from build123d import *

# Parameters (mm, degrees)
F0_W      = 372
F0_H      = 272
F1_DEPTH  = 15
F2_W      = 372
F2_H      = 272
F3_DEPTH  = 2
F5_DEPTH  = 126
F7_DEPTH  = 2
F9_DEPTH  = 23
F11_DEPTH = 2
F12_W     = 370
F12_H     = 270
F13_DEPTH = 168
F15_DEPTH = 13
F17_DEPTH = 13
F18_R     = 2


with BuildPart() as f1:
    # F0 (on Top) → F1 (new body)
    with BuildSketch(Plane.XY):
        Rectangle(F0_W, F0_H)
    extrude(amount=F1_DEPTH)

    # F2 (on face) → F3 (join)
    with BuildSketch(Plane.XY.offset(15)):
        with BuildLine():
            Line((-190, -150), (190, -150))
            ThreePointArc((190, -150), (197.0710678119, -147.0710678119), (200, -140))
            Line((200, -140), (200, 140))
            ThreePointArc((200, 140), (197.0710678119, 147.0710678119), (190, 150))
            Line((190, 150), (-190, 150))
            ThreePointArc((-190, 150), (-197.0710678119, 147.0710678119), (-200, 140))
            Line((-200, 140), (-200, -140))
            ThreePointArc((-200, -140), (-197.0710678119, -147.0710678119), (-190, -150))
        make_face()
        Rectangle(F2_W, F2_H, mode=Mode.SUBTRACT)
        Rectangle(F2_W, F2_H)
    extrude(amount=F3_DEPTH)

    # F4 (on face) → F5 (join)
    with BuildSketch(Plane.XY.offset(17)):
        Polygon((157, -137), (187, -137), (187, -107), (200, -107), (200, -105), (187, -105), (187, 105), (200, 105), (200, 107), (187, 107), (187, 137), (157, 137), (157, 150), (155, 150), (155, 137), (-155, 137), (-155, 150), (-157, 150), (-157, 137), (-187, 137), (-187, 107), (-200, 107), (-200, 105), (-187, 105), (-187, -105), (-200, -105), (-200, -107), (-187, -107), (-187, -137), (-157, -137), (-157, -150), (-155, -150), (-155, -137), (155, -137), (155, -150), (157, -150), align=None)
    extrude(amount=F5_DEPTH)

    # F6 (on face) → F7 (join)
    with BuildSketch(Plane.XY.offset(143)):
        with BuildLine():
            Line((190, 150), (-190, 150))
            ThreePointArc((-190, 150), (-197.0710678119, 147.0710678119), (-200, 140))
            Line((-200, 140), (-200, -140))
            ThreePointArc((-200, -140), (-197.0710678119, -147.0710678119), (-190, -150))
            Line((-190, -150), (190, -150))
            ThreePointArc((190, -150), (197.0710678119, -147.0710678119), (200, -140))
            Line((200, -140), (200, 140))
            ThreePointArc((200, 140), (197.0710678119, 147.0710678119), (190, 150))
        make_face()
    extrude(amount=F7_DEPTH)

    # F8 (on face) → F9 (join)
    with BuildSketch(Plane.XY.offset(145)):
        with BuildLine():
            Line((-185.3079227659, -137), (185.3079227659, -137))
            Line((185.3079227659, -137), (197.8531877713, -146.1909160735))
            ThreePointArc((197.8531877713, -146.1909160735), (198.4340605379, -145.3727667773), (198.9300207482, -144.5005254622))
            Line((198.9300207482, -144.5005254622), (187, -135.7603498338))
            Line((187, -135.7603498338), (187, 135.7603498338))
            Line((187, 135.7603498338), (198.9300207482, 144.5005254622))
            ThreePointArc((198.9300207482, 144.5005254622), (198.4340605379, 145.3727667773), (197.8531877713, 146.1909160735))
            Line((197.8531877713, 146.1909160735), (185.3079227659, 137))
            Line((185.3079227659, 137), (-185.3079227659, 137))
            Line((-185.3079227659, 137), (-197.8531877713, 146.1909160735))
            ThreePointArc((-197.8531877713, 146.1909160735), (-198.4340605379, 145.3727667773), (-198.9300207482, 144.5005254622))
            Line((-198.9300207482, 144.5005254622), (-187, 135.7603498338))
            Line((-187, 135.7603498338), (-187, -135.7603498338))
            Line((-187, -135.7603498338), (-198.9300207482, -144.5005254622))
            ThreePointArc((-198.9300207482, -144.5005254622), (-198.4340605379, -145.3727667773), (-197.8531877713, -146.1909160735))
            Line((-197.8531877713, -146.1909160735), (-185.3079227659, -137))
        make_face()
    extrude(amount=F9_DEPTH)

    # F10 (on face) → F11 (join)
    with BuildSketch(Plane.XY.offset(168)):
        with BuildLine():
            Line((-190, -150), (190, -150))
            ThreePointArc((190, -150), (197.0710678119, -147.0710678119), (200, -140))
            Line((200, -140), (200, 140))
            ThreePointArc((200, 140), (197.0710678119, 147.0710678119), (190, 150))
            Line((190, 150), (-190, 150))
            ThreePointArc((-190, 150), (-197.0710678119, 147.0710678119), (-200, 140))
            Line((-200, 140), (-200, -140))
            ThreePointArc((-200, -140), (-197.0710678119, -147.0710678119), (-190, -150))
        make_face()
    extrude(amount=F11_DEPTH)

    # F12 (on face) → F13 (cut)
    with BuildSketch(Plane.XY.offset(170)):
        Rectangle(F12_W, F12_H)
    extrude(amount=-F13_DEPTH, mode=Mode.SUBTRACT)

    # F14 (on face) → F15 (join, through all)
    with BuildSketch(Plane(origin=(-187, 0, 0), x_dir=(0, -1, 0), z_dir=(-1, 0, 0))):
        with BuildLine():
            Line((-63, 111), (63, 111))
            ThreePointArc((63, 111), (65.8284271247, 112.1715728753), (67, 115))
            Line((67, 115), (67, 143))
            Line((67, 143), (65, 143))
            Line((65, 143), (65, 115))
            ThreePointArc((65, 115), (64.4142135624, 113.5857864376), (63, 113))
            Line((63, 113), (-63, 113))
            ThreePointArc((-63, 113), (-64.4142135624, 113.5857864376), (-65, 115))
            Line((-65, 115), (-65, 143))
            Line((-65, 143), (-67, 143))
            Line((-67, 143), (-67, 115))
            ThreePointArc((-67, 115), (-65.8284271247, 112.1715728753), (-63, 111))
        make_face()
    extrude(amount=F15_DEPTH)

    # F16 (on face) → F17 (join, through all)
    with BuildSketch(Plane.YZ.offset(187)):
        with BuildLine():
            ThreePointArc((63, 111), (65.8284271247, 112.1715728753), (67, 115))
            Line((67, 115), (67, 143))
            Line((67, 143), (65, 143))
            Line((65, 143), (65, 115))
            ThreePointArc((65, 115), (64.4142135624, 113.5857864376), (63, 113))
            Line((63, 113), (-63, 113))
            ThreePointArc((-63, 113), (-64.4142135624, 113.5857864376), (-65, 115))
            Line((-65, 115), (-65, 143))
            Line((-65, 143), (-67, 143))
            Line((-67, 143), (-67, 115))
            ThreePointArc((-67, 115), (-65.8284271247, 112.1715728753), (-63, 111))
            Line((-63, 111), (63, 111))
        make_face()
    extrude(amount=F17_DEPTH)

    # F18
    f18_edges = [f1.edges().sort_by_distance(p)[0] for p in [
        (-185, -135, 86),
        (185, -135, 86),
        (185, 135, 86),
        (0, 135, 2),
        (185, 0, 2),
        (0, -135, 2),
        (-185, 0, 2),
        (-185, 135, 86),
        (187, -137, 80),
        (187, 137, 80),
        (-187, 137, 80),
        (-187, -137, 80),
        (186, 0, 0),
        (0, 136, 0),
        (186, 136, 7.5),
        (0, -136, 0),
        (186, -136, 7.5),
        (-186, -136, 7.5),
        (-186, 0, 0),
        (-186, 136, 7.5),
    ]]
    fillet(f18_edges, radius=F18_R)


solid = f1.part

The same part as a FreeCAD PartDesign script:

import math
import FreeCAD as App
import Part
import Sketcher

V = App.Vector


def edges_at(feature, points):
    """Names of the edges that pass closest to the given points."""
    edges = feature.Shape.Edges
    near = lambda p: min(range(len(edges)), key=lambda i: edges[i].distToShape(Part.Vertex(*p))[0])
    return sorted({f"Edge{near(p) + 1}" for p in points})

doc = App.newDocument("Part")
body = doc.addObject("PartDesign::Body", "Body")

# Sketch on XY plane
sketch1 = body.newObject("Sketcher::SketchObject", "Sketch")
sketch1.AttachmentSupport = (doc.getObject("XY_Plane"), [""])
sketch1.MapMode = "FlatFace"
sketch1.addGeometry([
    Part.LineSegment(V(-186, 136, 0), V(-186, -136, 0)),
    Part.LineSegment(V(-186, -136, 0), V(186, -136, 0)),
    Part.LineSegment(V(186, -136, 0), V(186, 136, 0)),
    Part.LineSegment(V(186, 136, 0), V(-186, 136, 0)),
], False)
sketch1.addConstraint([
    Sketcher.Constraint("Coincident", 0, 2, 1, 1),
    Sketcher.Constraint("Coincident", 1, 2, 2, 1),
    Sketcher.Constraint("Coincident", 2, 2, 3, 1),
    Sketcher.Constraint("Coincident", 3, 2, 0, 1),
    Sketcher.Constraint("Vertical", 0),
    Sketcher.Constraint("Horizontal", 1),
    Sketcher.Constraint("Vertical", 2),
    Sketcher.Constraint("Horizontal", 3),
    Sketcher.Constraint("Symmetric", 0, 2, 2, 2, -1, 1),
    Sketcher.Constraint("DistanceX", 1, 1, 1, 2, 372.0),
    Sketcher.Constraint("DistanceY", 0, 2, 0, 1, 272.0),
])
pad1 = body.newObject("PartDesign::Pad", "Pad")
pad1.Profile = sketch1
pad1.Length = 15

# Sketch on XY plane
sketch2 = body.newObject("Sketcher::SketchObject", "Sketch001")
sketch2.AttachmentSupport = (doc.getObject("XY_Plane"), [""])
sketch2.MapMode = "FlatFace"
sketch2.AttachmentOffset = App.Placement(V(0, 0, 15), App.Rotation())
sketch2.addGeometry([
    Part.LineSegment(V(-190, -150, 0), V(190, -150, 0)),  # 0
    Part.ArcOfCircle(Part.Circle(V(190, -140, 0), V(0, 0, 1), 10), math.radians(-90), math.radians(0)),  # 1
    Part.LineSegment(V(200, -140, 0), V(200, 140, 0)),  # 2
    Part.ArcOfCircle(Part.Circle(V(190, 140, 0), V(0, 0, 1), 10), math.radians(0), math.radians(90)),  # 3
    Part.LineSegment(V(190, 150, 0), V(-190, 150, 0)),  # 4
    Part.ArcOfCircle(Part.Circle(V(-190, 140, 0), V(0, 0, 1), 10), math.radians(90), math.radians(180)),  # 5
    Part.LineSegment(V(-200, 140, 0), V(-200, -140, 0)),  # 6
    Part.ArcOfCircle(Part.Circle(V(-190, -140, 0), V(0, 0, 1), 10), math.radians(180), math.radians(270)),  # 7
], False)
sketch2.addConstraint([
    Sketcher.Constraint("Tangent", 0, 2, 1, 1),
    Sketcher.Constraint("Tangent", 1, 2, 2, 1),
    Sketcher.Constraint("Tangent", 2, 2, 3, 1),
    Sketcher.Constraint("Tangent", 3, 2, 4, 1),
    Sketcher.Constraint("Tangent", 4, 2, 5, 1),
    Sketcher.Constraint("Tangent", 5, 2, 6, 1),
    Sketcher.Constraint("Tangent", 6, 2, 7, 1),
    Sketcher.Constraint("Tangent", 7, 2, 0, 1),
    Sketcher.Constraint("Horizontal", 0),
    Sketcher.Constraint("Vertical", 2),
    Sketcher.Constraint("Horizontal", 4),
    Sketcher.Constraint("Vertical", 6),
    Sketcher.Constraint("Equal", 1, 3),
    Sketcher.Constraint("Equal", 3, 5),
    Sketcher.Constraint("Equal", 5, 7),
    Sketcher.Constraint("Symmetric", 1, 3, 5, 3, -1, 1),
    Sketcher.Constraint("Radius", 1, 10.0),
    Sketcher.Constraint("DistanceX", 0, 1, 0, 2, 380.0),
    Sketcher.Constraint("DistanceY", 2, 1, 2, 2, 280.0),
])
pad2 = body.newObject("PartDesign::Pad", "Pad001")
pad2.Profile = sketch2
pad2.Length = 2

# Sketch on XY plane
sketch3 = body.newObject("Sketcher::SketchObject", "Sketch002")
sketch3.AttachmentSupport = (doc.getObject("XY_Plane"), [""])
sketch3.MapMode = "FlatFace"
sketch3.AttachmentOffset = App.Placement(V(0, 0, 17), App.Rotation())
sketch3.addGeometry([
    Part.LineSegment(V(157, -137, 0), V(187, -137, 0)),  # 0
    Part.LineSegment(V(187, -137, 0), V(187, -107, 0)),  # 1
    Part.LineSegment(V(187, -107, 0), V(200, -107, 0)),  # 2
    Part.LineSegment(V(200, -107, 0), V(200, -105, 0)),  # 3
    Part.LineSegment(V(200, -105, 0), V(187, -105, 0)),  # 4
    Part.LineSegment(V(187, -105, 0), V(187, 105, 0)),  # 5
    Part.LineSegment(V(187, 105, 0), V(200, 105, 0)),  # 6
    Part.LineSegment(V(200, 105, 0), V(200, 107, 0)),  # 7
    Part.LineSegment(V(200, 107, 0), V(187, 107, 0)),  # 8
    Part.LineSegment(V(187, 107, 0), V(187, 137, 0)),  # 9
    Part.LineSegment(V(187, 137, 0), V(157, 137, 0)),  # 10
    Part.LineSegment(V(157, 137, 0), V(157, 150, 0)),  # 11
    Part.LineSegment(V(157, 150, 0), V(155, 150, 0)),  # 12
    Part.LineSegment(V(155, 150, 0), V(155, 137, 0)),  # 13
    Part.LineSegment(V(155, 137, 0), V(-155, 137, 0)),  # 14
    Part.LineSegment(V(-155, 137, 0), V(-155, 150, 0)),  # 15
    Part.LineSegment(V(-155, 150, 0), V(-157, 150, 0)),  # 16
    Part.LineSegment(V(-157, 150, 0), V(-157, 137, 0)),  # 17
    Part.LineSegment(V(-157, 137, 0), V(-187, 137, 0)),  # 18
    Part.LineSegment(V(-187, 137, 0), V(-187, 107, 0)),  # 19
    Part.LineSegment(V(-187, 107, 0), V(-200, 107, 0)),  # 20
    Part.LineSegment(V(-200, 107, 0), V(-200, 105, 0)),  # 21
    Part.LineSegment(V(-200, 105, 0), V(-187, 105, 0)),  # 22
    Part.LineSegment(V(-187, 105, 0), V(-187, -105, 0)),  # 23
    Part.LineSegment(V(-187, -105, 0), V(-200, -105, 0)),  # 24
    Part.LineSegment(V(-200, -105, 0), V(-200, -107, 0)),  # 25
    Part.LineSegment(V(-200, -107, 0), V(-187, -107, 0)),  # 26
    Part.LineSegment(V(-187, -107, 0), V(-187, -137, 0)),  # 27
    Part.LineSegment(V(-187, -137, 0), V(-157, -137, 0)),  # 28
    Part.LineSegment(V(-157, -137, 0), V(-157, -150, 0)),  # 29
    Part.LineSegment(V(-157, -150, 0), V(-155, -150, 0)),  # 30
    Part.LineSegment(V(-155, -150, 0), V(-155, -137, 0)),  # 31
    Part.LineSegment(V(-155, -137, 0), V(155, -137, 0)),  # 32
    Part.LineSegment(V(155, -137, 0), V(155, -150, 0)),  # 33
    Part.LineSegment(V(155, -150, 0), V(157, -150, 0)),  # 34
    Part.LineSegment(V(157, -150, 0), V(157, -137, 0)),  # 35
], False)
sketch3.addConstraint([
    Sketcher.Constraint("Coincident", 0, 2, 1, 1),
    Sketcher.Constraint("Coincident", 1, 2, 2, 1),
    Sketcher.Constraint("Coincident", 2, 2, 3, 1),
    Sketcher.Constraint("Coincident", 3, 2, 4, 1),
    Sketcher.Constraint("Coincident", 4, 2, 5, 1),
    Sketcher.Constraint("Coincident", 5, 2, 6, 1),
    Sketcher.Constraint("Coincident", 6, 2, 7, 1),
    Sketcher.Constraint("Coincident", 7, 2, 8, 1),
    Sketcher.Constraint("Coincident", 8, 2, 9, 1),
    Sketcher.Constraint("Coincident", 9, 2, 10, 1),
    Sketcher.Constraint("Coincident", 10, 2, 11, 1),
    Sketcher.Constraint("Coincident", 11, 2, 12, 1),
    Sketcher.Constraint("Coincident", 12, 2, 13, 1),
    Sketcher.Constraint("Coincident", 13, 2, 14, 1),
    Sketcher.Constraint("Coincident", 14, 2, 15, 1),
    Sketcher.Constraint("Coincident", 15, 2, 16, 1),
    Sketcher.Constraint("Coincident", 16, 2, 17, 1),
    Sketcher.Constraint("Coincident", 17, 2, 18, 1),
    Sketcher.Constraint("Coincident", 18, 2, 19, 1),
    Sketcher.Constraint("Coincident", 19, 2, 20, 1),
    Sketcher.Constraint("Coincident", 20, 2, 21, 1),
    Sketcher.Constraint("Coincident", 21, 2, 22, 1),
    Sketcher.Constraint("Coincident", 22, 2, 23, 1),
    Sketcher.Constraint("Coincident", 23, 2, 24, 1),
    Sketcher.Constraint("Coincident", 24, 2, 25, 1),
    Sketcher.Constraint("Coincident", 25, 2, 26, 1),
    Sketcher.Constraint("Coincident", 26, 2, 27, 1),
    Sketcher.Constraint("Coincident", 27, 2, 28, 1),
    Sketcher.Constraint("Coincident", 28, 2, 29, 1),
    Sketcher.Constraint("Coincident", 29, 2, 30, 1),
    Sketcher.Constraint("Coincident", 30, 2, 31, 1),
    Sketcher.Constraint("Coincident", 31, 2, 32, 1),
    Sketcher.Constraint("Coincident", 32, 2, 33, 1),
    Sketcher.Constraint("Coincident", 33, 2, 34, 1),
    Sketcher.Constraint("Coincident", 34, 2, 35, 1),
    Sketcher.Constraint("Coincident", 35, 2, 0, 1),
    Sketcher.Constraint("Horizontal", 0),
    Sketcher.Constraint("Vertical", 1),
    Sketcher.Constraint("Horizontal", 2),
    Sketcher.Constraint("Vertical", 3),
    Sketcher.Constraint("Horizontal", 4),
    Sketcher.Constraint("Vertical", 5),
    Sketcher.Constraint("Horizontal", 6),
    Sketcher.Constraint("Vertical", 7),
    Sketcher.Constraint("Horizontal", 8),
    Sketcher.Constraint("Vertical", 9),
    Sketcher.Constraint("Horizontal", 10),
    Sketcher.Constraint("Vertical", 11),
    Sketcher.Constraint("Horizontal", 12),
    Sketcher.Constraint("Vertical", 13),
    Sketcher.Constraint("Horizontal", 14),
    Sketcher.Constraint("Vertical", 15),
    Sketcher.Constraint("Horizontal", 16),
    Sketcher.Constraint("Vertical", 17),
    Sketcher.Constraint("Horizontal", 18),
    Sketcher.Constraint("Vertical", 19),
    Sketcher.Constraint("Horizontal", 20),
    Sketcher.Constraint("Vertical", 21),
    Sketcher.Constraint("Horizontal", 22),
    Sketcher.Constraint("Vertical", 23),
    Sketcher.Constraint("Horizontal", 24),
    Sketcher.Constraint("Vertical", 25),
    Sketcher.Constraint("Horizontal", 26),
    Sketcher.Constraint("Vertical", 27),
    Sketcher.Constraint("Horizontal", 28),
    Sketcher.Constraint("Vertical", 29),
    Sketcher.Constraint("Horizontal", 30),
    Sketcher.Constraint("Vertical", 31),
    Sketcher.Constraint("Horizontal", 32),
    Sketcher.Constraint("Vertical", 33),
    Sketcher.Constraint("Horizontal", 34),
    Sketcher.Constraint("Vertical", 35),
    Sketcher.Constraint("Symmetric", 0, 2, 18, 2, -1, 1),
    Sketcher.Constraint("Symmetric", 2, 2, 20, 2, -1, 1),
    Sketcher.Constraint("Symmetric", 4, 2, 22, 2, -1, 1),
    Sketcher.Constraint("Symmetric", 6, 2, 24, 2, -1, 1),
    Sketcher.Constraint("Symmetric", 8, 2, 26, 2, -1, 1),
    Sketcher.Constraint("Symmetric", 10, 2, 28, 2, -1, 1),
    Sketcher.Constraint("Symmetric", 12, 2, 30, 2, -1, 1),
    Sketcher.Constraint("Symmetric", 14, 2, 32, 2, -1, 1),
    Sketcher.Constraint("Symmetric", 16, 2, 34, 2, -1, 1),
    Sketcher.Constraint("Symmetric", 12, 2, 15, 2, -2),
    Sketcher.Constraint("Symmetric", 10, 2, 17, 2, -2),
    Sketcher.Constraint("Symmetric", 8, 2, 19, 2, -2),
    Sketcher.Constraint("Symmetric", 6, 2, 21, 2, -2),
    Sketcher.Constraint("Horizontal", 10, 2, 13, 2),
    Sketcher.Constraint("Vertical", 1, 2, 4, 2),
    Sketcher.Constraint("Equal", 28, 1),
    Sketcher.Constraint("Equal", 34, 3),
    Sketcher.Constraint("Equal", 26, 11),
    Sketcher.Constraint("DistanceX", 0, 1, 0, 2, 30.0),
    Sketcher.Constraint("DistanceX", 2, 1, 2, 2, 13.0),
    Sketcher.Constraint("DistanceX", 12, 2, 12, 1, 2.0),
    Sketcher.Constraint("DistanceX", 14, 2, 14, 1, 310.0),
    Sketcher.Constraint("DistanceY", 5, 1, 5, 2, 210.0),
])
pad3 = body.newObject("PartDesign::Pad", "Pad002")
pad3.Profile = sketch3
pad3.Length = 126

# Sketch on XY plane
sketch4 = body.newObject("Sketcher::SketchObject", "Sketch003")
sketch4.AttachmentSupport = (doc.getObject("XY_Plane"), [""])
sketch4.MapMode = "FlatFace"
sketch4.AttachmentOffset = App.Placement(V(0, 0, 143), App.Rotation())
sketch4.addGeometry([
    Part.LineSegment(V(190, 150, 0), V(-190, 150, 0)),  # 0
    Part.ArcOfCircle(Part.Circle(V(-190, 140, 0), V(0, 0, 1), 10), math.radians(90), math.radians(180)),  # 1
    Part.LineSegment(V(-200, 140, 0), V(-200, -140, 0)),  # 2
    Part.ArcOfCircle(Part.Circle(V(-190, -140, 0), V(0, 0, 1), 10), math.radians(180), math.radians(270)),  # 3
    Part.LineSegment(V(-190, -150, 0), V(190, -150, 0)),  # 4
    Part.ArcOfCircle(Part.Circle(V(190, -140, 0), V(0, 0, 1), 10), math.radians(-90), math.radians(0)),  # 5
    Part.LineSegment(V(200, -140, 0), V(200, 140, 0)),  # 6
    Part.ArcOfCircle(Part.Circle(V(190, 140, 0), V(0, 0, 1), 10), math.radians(0), math.radians(90)),  # 7
], False)
sketch4.addConstraint([
    Sketcher.Constraint("Tangent", 0, 2, 1, 1),
    Sketcher.Constraint("Tangent", 1, 2, 2, 1),
    Sketcher.Constraint("Tangent", 2, 2, 3, 1),
    Sketcher.Constraint("Tangent", 3, 2, 4, 1),
    Sketcher.Constraint("Tangent", 4, 2, 5, 1),
    Sketcher.Constraint("Tangent", 5, 2, 6, 1),
    Sketcher.Constraint("Tangent", 6, 2, 7, 1),
    Sketcher.Constraint("Tangent", 7, 2, 0, 1),
    Sketcher.Constraint("Horizontal", 0),
    Sketcher.Constraint("Vertical", 2),
    Sketcher.Constraint("Horizontal", 4),
    Sketcher.Constraint("Vertical", 6),
    Sketcher.Constraint("Equal", 1, 3),
    Sketcher.Constraint("Equal", 3, 5),
    Sketcher.Constraint("Equal", 5, 7),
    Sketcher.Constraint("Symmetric", 1, 3, 5, 3, -1, 1),
    Sketcher.Constraint("Radius", 1, 10.0),
    Sketcher.Constraint("DistanceX", 0, 2, 0, 1, 380.0),
    Sketcher.Constraint("DistanceY", 2, 2, 2, 1, 280.0),
])
pad4 = body.newObject("PartDesign::Pad", "Pad003")
pad4.Profile = sketch4
pad4.Length = 2

# Sketch on XY plane
sketch5 = body.newObject("Sketcher::SketchObject", "Sketch004")
sketch5.AttachmentSupport = (doc.getObject("XY_Plane"), [""])
sketch5.MapMode = "FlatFace"
sketch5.AttachmentOffset = App.Placement(V(0, 0, 145), App.Rotation())
sketch5.addGeometry([
    Part.LineSegment(V(-185.3, -137, 0), V(185.3, -137, 0)),  # 0
    Part.LineSegment(V(185.3, -137, 0), V(197.9, -146.2, 0)),  # 1
    Part.ArcOfCircle(Part.Circle(V(190, -140, 0), V(0, 0, 1), 10), math.radians(-38.25), math.radians(-26.75)),  # 2
    Part.LineSegment(V(198.9, -144.5, 0), V(187, -135.8, 0)),  # 3
    Part.LineSegment(V(187, -135.8, 0), V(187, 135.8, 0)),  # 4
    Part.LineSegment(V(187, 135.8, 0), V(198.9, 144.5, 0)),  # 5
    Part.ArcOfCircle(Part.Circle(V(190, 140, 0), V(0, 0, 1), 10), math.radians(26.75), math.radians(38.25)),  # 6
    Part.LineSegment(V(197.9, 146.2, 0), V(185.3, 137, 0)),  # 7
    Part.LineSegment(V(185.3, 137, 0), V(-185.3, 137, 0)),  # 8
    Part.LineSegment(V(-185.3, 137, 0), V(-197.9, 146.2, 0)),  # 9
    Part.ArcOfCircle(Part.Circle(V(-190, 140, 0), V(0, 0, 1), 10), math.radians(141.75), math.radians(153.25)),  # 10
    Part.LineSegment(V(-198.9, 144.5, 0), V(-187, 135.8, 0)),  # 11
    Part.LineSegment(V(-187, 135.8, 0), V(-187, -135.8, 0)),  # 12
    Part.LineSegment(V(-187, -135.8, 0), V(-198.9, -144.5, 0)),  # 13
    Part.ArcOfCircle(Part.Circle(V(-190, -140, 0), V(0, 0, 1), 10), math.radians(-153.25), math.radians(-141.75)),  # 14
    Part.LineSegment(V(-197.9, -146.2, 0), V(-185.3, -137, 0)),  # 15
], False)
sketch5.addConstraint([
    Sketcher.Constraint("Coincident", 0, 2, 1, 1),
    Sketcher.Constraint("Coincident", 1, 2, 2, 1),
    Sketcher.Constraint("Coincident", 2, 2, 3, 1),
    Sketcher.Constraint("Coincident", 3, 2, 4, 1),
    Sketcher.Constraint("Coincident", 4, 2, 5, 1),
    Sketcher.Constraint("Coincident", 5, 2, 6, 1),
    Sketcher.Constraint("Coincident", 6, 2, 7, 1),
    Sketcher.Constraint("Coincident", 7, 2, 8, 1),
    Sketcher.Constraint("Coincident", 8, 2, 9, 1),
    Sketcher.Constraint("Coincident", 9, 2, 10, 1),
    Sketcher.Constraint("Coincident", 10, 2, 11, 1),
    Sketcher.Constraint("Coincident", 11, 2, 12, 1),
    Sketcher.Constraint("Coincident", 12, 2, 13, 1),
    Sketcher.Constraint("Coincident", 13, 2, 14, 1),
    Sketcher.Constraint("Coincident", 14, 2, 15, 1),
    Sketcher.Constraint("Coincident", 15, 2, 0, 1),
    Sketcher.Constraint("Horizontal", 0),
    Sketcher.Constraint("Vertical", 4),
    Sketcher.Constraint("Horizontal", 8),
    Sketcher.Constraint("Vertical", 12),
    Sketcher.Constraint("Equal", 2, 6),
    Sketcher.Constraint("Equal", 6, 10),
    Sketcher.Constraint("Equal", 10, 14),
    Sketcher.Constraint("Symmetric", 2, 3, 10, 3, -1, 1),
    Sketcher.Constraint("Symmetric", 6, 3, 14, 3, -1, 1),
    Sketcher.Constraint("Symmetric", 0, 2, 8, 2, -1, 1),
    Sketcher.Constraint("Symmetric", 3, 2, 11, 2, -1, 1),
    Sketcher.Constraint("Symmetric", 6, 3, 10, 3, -2),
    Sketcher.Constraint("Parallel", 1, 3),
    Sketcher.Constraint("Parallel", 5, 7),
    Sketcher.Constraint("Parallel", 3, 9),
    Sketcher.Constraint("Parallel", 9, 11),
    Sketcher.Constraint("Parallel", 7, 13),
    Sketcher.Constraint("Parallel", 13, 15),
    Sketcher.Constraint("Horizontal", 6, 2, 9, 2),
    Sketcher.Constraint("Horizontal", 5, 2, 10, 2),
    Sketcher.Constraint("Horizontal", 4, 2, 11, 2),
    Sketcher.Constraint("Horizontal", 3, 2, 12, 2),
    Sketcher.Constraint("Horizontal", 1, 2, 14, 2),
    Sketcher.Constraint("Radius", 2, 10.0),
    Sketcher.Constraint("DistanceX", -1, 1, 2, 3, 190.0),
    Sketcher.Constraint("DistanceY", 2, 3, -1, 1, 140.0),
    Sketcher.Constraint("DistanceY", 0, 2, -1, 1, 137.0),
    Sketcher.Constraint("DistanceX", -1, 1, 3, 2, 187.0),
    Sketcher.Constraint("DistanceY", 4, 1, 4, 2, 271.5207),
    Sketcher.Constraint("Distance", 1, 15.55174),
    Sketcher.Constraint("DistanceX", 0, 1, 0, 2, 370.615846),
])
pad5 = body.newObject("PartDesign::Pad", "Pad004")
pad5.Profile = sketch5
pad5.Length = 23

# Sketch on XY plane
sketch6 = body.newObject("Sketcher::SketchObject", "Sketch005")
sketch6.AttachmentSupport = (doc.getObject("XY_Plane"), [""])
sketch6.MapMode = "FlatFace"
sketch6.AttachmentOffset = App.Placement(V(0, 0, 168), App.Rotation())
sketch6.addGeometry([
    Part.LineSegment(V(-190, -150, 0), V(190, -150, 0)),  # 0
    Part.ArcOfCircle(Part.Circle(V(190, -140, 0), V(0, 0, 1), 10), math.radians(-90), math.radians(0)),  # 1
    Part.LineSegment(V(200, -140, 0), V(200, 140, 0)),  # 2
    Part.ArcOfCircle(Part.Circle(V(190, 140, 0), V(0, 0, 1), 10), math.radians(0), math.radians(90)),  # 3
    Part.LineSegment(V(190, 150, 0), V(-190, 150, 0)),  # 4
    Part.ArcOfCircle(Part.Circle(V(-190, 140, 0), V(0, 0, 1), 10), math.radians(90), math.radians(180)),  # 5
    Part.LineSegment(V(-200, 140, 0), V(-200, -140, 0)),  # 6
    Part.ArcOfCircle(Part.Circle(V(-190, -140, 0), V(0, 0, 1), 10), math.radians(180), math.radians(270)),  # 7
], False)
sketch6.addConstraint([
    Sketcher.Constraint("Tangent", 0, 2, 1, 1),
    Sketcher.Constraint("Tangent", 1, 2, 2, 1),
    Sketcher.Constraint("Tangent", 2, 2, 3, 1),
    Sketcher.Constraint("Tangent", 3, 2, 4, 1),
    Sketcher.Constraint("Tangent", 4, 2, 5, 1),
    Sketcher.Constraint("Tangent", 5, 2, 6, 1),
    Sketcher.Constraint("Tangent", 6, 2, 7, 1),
    Sketcher.Constraint("Tangent", 7, 2, 0, 1),
    Sketcher.Constraint("Horizontal", 0),
    Sketcher.Constraint("Vertical", 2),
    Sketcher.Constraint("Horizontal", 4),
    Sketcher.Constraint("Vertical", 6),
    Sketcher.Constraint("Equal", 1, 3),
    Sketcher.Constraint("Equal", 3, 5),
    Sketcher.Constraint("Equal", 5, 7),
    Sketcher.Constraint("Symmetric", 1, 3, 5, 3, -1, 1),
    Sketcher.Constraint("Radius", 1, 10.0),
    Sketcher.Constraint("DistanceX", 0, 1, 0, 2, 380.0),
    Sketcher.Constraint("DistanceY", 2, 1, 2, 2, 280.0),
])
pad6 = body.newObject("PartDesign::Pad", "Pad005")
pad6.Profile = sketch6
pad6.Length = 2

# Sketch on XY plane
sketch7 = body.newObject("Sketcher::SketchObject", "Sketch006")
sketch7.AttachmentSupport = (doc.getObject("XY_Plane"), [""])
sketch7.MapMode = "FlatFace"
sketch7.AttachmentOffset = App.Placement(V(0, 0, 170), App.Rotation())
sketch7.addGeometry([
    Part.LineSegment(V(-185, 135, 0), V(-185, -135, 0)),
    Part.LineSegment(V(-185, -135, 0), V(185, -135, 0)),
    Part.LineSegment(V(185, -135, 0), V(185, 135, 0)),
    Part.LineSegment(V(185, 135, 0), V(-185, 135, 0)),
], False)
sketch7.addConstraint([
    Sketcher.Constraint("Coincident", 0, 2, 1, 1),
    Sketcher.Constraint("Coincident", 1, 2, 2, 1),
    Sketcher.Constraint("Coincident", 2, 2, 3, 1),
    Sketcher.Constraint("Coincident", 3, 2, 0, 1),
    Sketcher.Constraint("Vertical", 0),
    Sketcher.Constraint("Horizontal", 1),
    Sketcher.Constraint("Vertical", 2),
    Sketcher.Constraint("Horizontal", 3),
    Sketcher.Constraint("Symmetric", 0, 2, 2, 2, -1, 1),
    Sketcher.Constraint("DistanceX", 1, 1, 1, 2, 370.0),
    Sketcher.Constraint("DistanceY", 0, 2, 0, 1, 270.0),
])
pocket1 = body.newObject("PartDesign::Pocket", "Pocket")
pocket1.Profile = sketch7
pocket1.Length = 168

# Sketch on YZ plane
sketch8 = body.newObject("Sketcher::SketchObject", "Sketch007")
sketch8.AttachmentSupport = (doc.getObject("YZ_Plane"), [""])
sketch8.MapMode = "FlatFace"
sketch8.AttachmentOffset = App.Placement(V(0, 0, -187), App.Rotation())
sketch8.addGeometry([
    Part.LineSegment(V(63, 111, 0), V(-63, 111, 0)),  # 0
    Part.ArcOfCircle(Part.Circle(V(-63, 115, 0), V(0, 0, 1), 4), math.radians(180), math.radians(270)),  # 1
    Part.LineSegment(V(-67, 115, 0), V(-67, 143, 0)),  # 2
    Part.LineSegment(V(-67, 143, 0), V(-65, 143, 0)),  # 3
    Part.LineSegment(V(-65, 143, 0), V(-65, 115, 0)),  # 4
    Part.ArcOfCircle(Part.Circle(V(-63, 115, 0), V(0, 0, 1), 2), math.radians(180), math.radians(270)),  # 5
    Part.LineSegment(V(-63, 113, 0), V(63, 113, 0)),  # 6
    Part.ArcOfCircle(Part.Circle(V(63, 115, 0), V(0, 0, 1), 2), math.radians(-90), math.radians(0)),  # 7
    Part.LineSegment(V(65, 115, 0), V(65, 143, 0)),  # 8
    Part.LineSegment(V(65, 143, 0), V(67, 143, 0)),  # 9
    Part.LineSegment(V(67, 143, 0), V(67, 115, 0)),  # 10
    Part.ArcOfCircle(Part.Circle(V(63, 115, 0), V(0, 0, 1), 4), math.radians(-90), math.radians(0)),  # 11
], False)
sketch8.addConstraint([
    Sketcher.Constraint("Tangent", 0, 2, 1, 2),
    Sketcher.Constraint("Tangent", 1, 1, 2, 1),
    Sketcher.Constraint("Coincident", 2, 2, 3, 1),
    Sketcher.Constraint("Coincident", 3, 2, 4, 1),
    Sketcher.Constraint("Tangent", 4, 2, 5, 1),
    Sketcher.Constraint("Tangent", 5, 2, 6, 1),
    Sketcher.Constraint("Tangent", 6, 2, 7, 1),
    Sketcher.Constraint("Tangent", 7, 2, 8, 1),
    Sketcher.Constraint("Coincident", 8, 2, 9, 1),
    Sketcher.Constraint("Coincident", 9, 2, 10, 1),
    Sketcher.Constraint("Tangent", 10, 2, 11, 2),
    Sketcher.Constraint("Tangent", 11, 1, 0, 1),
    Sketcher.Constraint("Horizontal", 0),
    Sketcher.Constraint("Vertical", 2),
    Sketcher.Constraint("Horizontal", 3),
    Sketcher.Constraint("Vertical", 4),
    Sketcher.Constraint("Horizontal", 6),
    Sketcher.Constraint("Vertical", 8),
    Sketcher.Constraint("Horizontal", 9),
    Sketcher.Constraint("Vertical", 10),
    Sketcher.Constraint("Coincident", 5, 3, 1, 3),
    Sketcher.Constraint("Coincident", 11, 3, 7, 3),
    Sketcher.Constraint("Equal", 5, 7),
    Sketcher.Constraint("Symmetric", 3, 2, 8, 2, -2),
    Sketcher.Constraint("Radius", 1, 4.0),
    Sketcher.Constraint("Radius", 5, 2.0),
    Sketcher.Constraint("DistanceX", 0, 2, 0, 1, 126.0),
    Sketcher.Constraint("DistanceY", 2, 1, 2, 2, 28.0),
    Sketcher.Constraint("DistanceY", -1, 1, 1, 3, 115.0),
])
pad7 = body.newObject("PartDesign::Pad", "Pad006")
pad7.Profile = sketch8
pad7.Length = 13
pad7.Reversed = True

# Sketch on YZ plane
sketch9 = body.newObject("Sketcher::SketchObject", "Sketch008")
sketch9.AttachmentSupport = (doc.getObject("YZ_Plane"), [""])
sketch9.MapMode = "FlatFace"
sketch9.AttachmentOffset = App.Placement(V(0, 0, 187), App.Rotation())
sketch9.addGeometry([
    Part.ArcOfCircle(Part.Circle(V(63, 115, 0), V(0, 0, 1), 4), math.radians(-90), math.radians(0)),  # 0
    Part.LineSegment(V(67, 115, 0), V(67, 143, 0)),  # 1
    Part.LineSegment(V(67, 143, 0), V(65, 143, 0)),  # 2
    Part.LineSegment(V(65, 143, 0), V(65, 115, 0)),  # 3
    Part.ArcOfCircle(Part.Circle(V(63, 115, 0), V(0, 0, 1), 2), math.radians(-90), math.radians(0)),  # 4
    Part.LineSegment(V(63, 113, 0), V(-63, 113, 0)),  # 5
    Part.ArcOfCircle(Part.Circle(V(-63, 115, 0), V(0, 0, 1), 2), math.radians(180), math.radians(270)),  # 6
    Part.LineSegment(V(-65, 115, 0), V(-65, 143, 0)),  # 7
    Part.LineSegment(V(-65, 143, 0), V(-67, 143, 0)),  # 8
    Part.LineSegment(V(-67, 143, 0), V(-67, 115, 0)),  # 9
    Part.ArcOfCircle(Part.Circle(V(-63, 115, 0), V(0, 0, 1), 4), math.radians(180), math.radians(270)),  # 10
    Part.LineSegment(V(-63, 111, 0), V(63, 111, 0)),  # 11
], False)
sketch9.addConstraint([
    Sketcher.Constraint("Tangent", 0, 2, 1, 1),
    Sketcher.Constraint("Coincident", 1, 2, 2, 1),
    Sketcher.Constraint("Coincident", 2, 2, 3, 1),
    Sketcher.Constraint("Tangent", 3, 2, 4, 2),
    Sketcher.Constraint("Tangent", 4, 1, 5, 1),
    Sketcher.Constraint("Tangent", 5, 2, 6, 2),
    Sketcher.Constraint("Tangent", 6, 1, 7, 1),
    Sketcher.Constraint("Coincident", 7, 2, 8, 1),
    Sketcher.Constraint("Coincident", 8, 2, 9, 1),
    Sketcher.Constraint("Tangent", 9, 2, 10, 1),
    Sketcher.Constraint("Tangent", 10, 2, 11, 1),
    Sketcher.Constraint("Tangent", 11, 2, 0, 1),
    Sketcher.Constraint("Vertical", 1),
    Sketcher.Constraint("Horizontal", 2),
    Sketcher.Constraint("Vertical", 3),
    Sketcher.Constraint("Horizontal", 5),
    Sketcher.Constraint("Vertical", 7),
    Sketcher.Constraint("Horizontal", 8),
    Sketcher.Constraint("Vertical", 9),
    Sketcher.Constraint("Horizontal", 11),
    Sketcher.Constraint("Coincident", 4, 3, 0, 3),
    Sketcher.Constraint("Coincident", 10, 3, 6, 3),
    Sketcher.Constraint("Equal", 4, 6),
    Sketcher.Constraint("Symmetric", 2, 2, 7, 2, -2),
    Sketcher.Constraint("Radius", 0, 4.0),
    Sketcher.Constraint("Radius", 4, 2.0),
    Sketcher.Constraint("DistanceX", 5, 2, 5, 1, 126.0),
    Sketcher.Constraint("DistanceY", 1, 1, 1, 2, 28.0),
    Sketcher.Constraint("DistanceY", -1, 1, 0, 3, 115.0),
])
pad8 = body.newObject("PartDesign::Pad", "Pad007")
pad8.Profile = sketch9
pad8.Length = 13
doc.recompute()

fillet = body.newObject("PartDesign::Fillet", "Fillet")
fillet.Base = (pad8, edges_at(pad8, [
    (-185, -135, 86),
    (185, -135, 86),
    (185, 135, 86),
    (0, 135, 2),
    (185, 0, 2),
    (0, -135, 2),
    (-185, 0, 2),
    (-185, 135, 86),
    (187, -137, 80),
    (187, 137, 80),
    (-187, 137, 80),
    (-187, -137, 80),
    (186, 0, 0),
    (0, 136, 0),
    (186, 136, 7.5),
    (0, -136, 0),
    (186, -136, 7.5),
    (-186, -136, 7.5),
    (-186, 0, 0),
    (-186, 136, 7.5),
]))
fillet.Radius = 2

doc.recompute()
